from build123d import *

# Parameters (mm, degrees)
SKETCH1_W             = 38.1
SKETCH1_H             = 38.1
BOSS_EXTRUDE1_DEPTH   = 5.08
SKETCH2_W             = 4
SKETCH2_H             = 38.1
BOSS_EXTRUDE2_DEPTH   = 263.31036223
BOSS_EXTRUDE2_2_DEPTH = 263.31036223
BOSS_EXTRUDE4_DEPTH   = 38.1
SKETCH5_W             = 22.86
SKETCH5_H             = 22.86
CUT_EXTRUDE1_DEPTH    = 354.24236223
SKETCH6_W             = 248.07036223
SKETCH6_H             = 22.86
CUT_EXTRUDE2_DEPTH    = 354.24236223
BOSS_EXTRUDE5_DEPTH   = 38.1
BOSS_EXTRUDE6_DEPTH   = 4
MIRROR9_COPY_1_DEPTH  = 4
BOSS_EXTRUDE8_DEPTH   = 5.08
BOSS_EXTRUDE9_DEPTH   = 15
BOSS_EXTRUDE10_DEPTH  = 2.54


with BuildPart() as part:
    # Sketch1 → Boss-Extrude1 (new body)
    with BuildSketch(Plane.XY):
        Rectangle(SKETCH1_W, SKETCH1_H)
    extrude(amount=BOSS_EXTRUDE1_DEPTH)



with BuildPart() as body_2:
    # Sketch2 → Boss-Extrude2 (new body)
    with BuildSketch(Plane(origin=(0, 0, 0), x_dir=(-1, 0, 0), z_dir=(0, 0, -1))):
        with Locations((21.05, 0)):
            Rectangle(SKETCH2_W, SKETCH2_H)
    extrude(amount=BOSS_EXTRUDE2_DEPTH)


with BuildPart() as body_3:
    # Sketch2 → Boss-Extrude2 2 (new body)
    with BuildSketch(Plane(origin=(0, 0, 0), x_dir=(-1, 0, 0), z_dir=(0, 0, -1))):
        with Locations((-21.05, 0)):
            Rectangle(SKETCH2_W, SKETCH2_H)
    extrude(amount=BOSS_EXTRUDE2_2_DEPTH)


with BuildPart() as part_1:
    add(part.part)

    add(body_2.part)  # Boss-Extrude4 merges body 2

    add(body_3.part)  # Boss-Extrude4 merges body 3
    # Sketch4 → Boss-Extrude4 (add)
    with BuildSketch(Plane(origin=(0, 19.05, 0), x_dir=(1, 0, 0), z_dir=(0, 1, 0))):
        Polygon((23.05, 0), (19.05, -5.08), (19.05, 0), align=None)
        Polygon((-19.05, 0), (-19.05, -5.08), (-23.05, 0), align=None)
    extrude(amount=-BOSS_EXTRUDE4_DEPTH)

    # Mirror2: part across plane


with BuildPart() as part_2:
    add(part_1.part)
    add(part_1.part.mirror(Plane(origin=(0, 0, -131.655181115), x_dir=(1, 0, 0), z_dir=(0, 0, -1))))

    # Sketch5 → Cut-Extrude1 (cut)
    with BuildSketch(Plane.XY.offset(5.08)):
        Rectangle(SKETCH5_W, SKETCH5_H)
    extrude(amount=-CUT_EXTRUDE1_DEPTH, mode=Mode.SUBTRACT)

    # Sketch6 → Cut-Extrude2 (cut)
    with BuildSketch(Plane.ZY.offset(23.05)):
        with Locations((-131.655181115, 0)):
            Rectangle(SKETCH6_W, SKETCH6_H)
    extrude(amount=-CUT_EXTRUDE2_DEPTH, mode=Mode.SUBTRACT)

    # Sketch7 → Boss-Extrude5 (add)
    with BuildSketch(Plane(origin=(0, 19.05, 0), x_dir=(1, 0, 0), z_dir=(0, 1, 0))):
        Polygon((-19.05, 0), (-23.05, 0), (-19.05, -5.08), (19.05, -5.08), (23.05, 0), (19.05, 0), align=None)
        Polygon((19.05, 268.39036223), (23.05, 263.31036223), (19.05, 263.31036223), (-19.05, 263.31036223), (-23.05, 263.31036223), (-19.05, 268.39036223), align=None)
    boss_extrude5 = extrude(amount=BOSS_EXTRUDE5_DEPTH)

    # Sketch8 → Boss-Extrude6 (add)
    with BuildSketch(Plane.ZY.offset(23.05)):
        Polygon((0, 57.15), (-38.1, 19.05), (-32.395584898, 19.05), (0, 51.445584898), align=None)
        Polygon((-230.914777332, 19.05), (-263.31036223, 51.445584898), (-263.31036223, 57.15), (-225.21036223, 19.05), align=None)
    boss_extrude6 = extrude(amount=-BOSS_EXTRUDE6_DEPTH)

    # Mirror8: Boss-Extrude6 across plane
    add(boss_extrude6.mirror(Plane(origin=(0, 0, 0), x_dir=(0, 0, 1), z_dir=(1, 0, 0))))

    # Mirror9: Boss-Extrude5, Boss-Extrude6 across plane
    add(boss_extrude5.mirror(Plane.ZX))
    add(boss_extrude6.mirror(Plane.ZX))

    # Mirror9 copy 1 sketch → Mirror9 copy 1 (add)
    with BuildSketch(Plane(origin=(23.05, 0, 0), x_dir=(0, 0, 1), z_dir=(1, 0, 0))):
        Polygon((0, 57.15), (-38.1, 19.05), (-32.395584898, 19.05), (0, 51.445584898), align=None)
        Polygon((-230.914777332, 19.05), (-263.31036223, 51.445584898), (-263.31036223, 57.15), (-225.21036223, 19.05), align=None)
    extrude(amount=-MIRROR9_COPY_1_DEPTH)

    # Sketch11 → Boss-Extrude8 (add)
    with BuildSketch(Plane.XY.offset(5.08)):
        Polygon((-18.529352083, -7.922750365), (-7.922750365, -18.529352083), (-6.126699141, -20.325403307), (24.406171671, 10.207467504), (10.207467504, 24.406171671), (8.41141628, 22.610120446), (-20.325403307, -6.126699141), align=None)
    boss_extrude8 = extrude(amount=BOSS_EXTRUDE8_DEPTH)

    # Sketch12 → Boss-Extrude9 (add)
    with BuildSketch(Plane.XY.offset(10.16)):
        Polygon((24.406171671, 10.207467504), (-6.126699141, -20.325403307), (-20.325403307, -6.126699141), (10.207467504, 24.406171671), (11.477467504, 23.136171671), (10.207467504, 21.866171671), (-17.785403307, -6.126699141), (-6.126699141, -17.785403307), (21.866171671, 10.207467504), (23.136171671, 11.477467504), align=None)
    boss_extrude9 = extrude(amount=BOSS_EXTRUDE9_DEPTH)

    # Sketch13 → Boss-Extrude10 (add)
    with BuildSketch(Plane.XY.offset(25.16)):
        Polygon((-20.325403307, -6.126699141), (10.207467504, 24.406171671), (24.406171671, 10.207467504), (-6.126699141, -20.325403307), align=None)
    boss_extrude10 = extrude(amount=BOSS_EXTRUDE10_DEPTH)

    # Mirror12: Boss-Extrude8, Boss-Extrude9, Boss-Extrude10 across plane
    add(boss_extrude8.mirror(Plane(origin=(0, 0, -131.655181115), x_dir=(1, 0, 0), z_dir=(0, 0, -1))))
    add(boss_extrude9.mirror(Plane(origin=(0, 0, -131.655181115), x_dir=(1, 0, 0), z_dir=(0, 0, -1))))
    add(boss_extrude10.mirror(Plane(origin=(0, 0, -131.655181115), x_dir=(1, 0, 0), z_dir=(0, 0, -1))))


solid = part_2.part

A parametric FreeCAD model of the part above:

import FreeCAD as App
import Part
import Sketcher
from FreeCAD import Vector
Q = App.Units.Quantity

doc = App.newDocument("Part")
body = doc.addObject("PartDesign::Body", "Body")

# Sketch on XY plane
sketch1 = body.newObject("Sketcher::SketchObject", "Sketch")
sketch1.AttachmentSupport = (doc.getObject("XY_Plane"), [""])
sketch1.MapMode = "FlatFace"
sketch1.addGeometry(Part.LineSegment(Vector(-19.05, 19.05, 0), Vector(-19.05, -19.05, 0)), False)
sketch1.addGeometry(Part.LineSegment(Vector(-19.05, -19.05, 0), Vector(19.05, -19.05, 0)), False)
sketch1.addGeometry(Part.LineSegment(Vector(19.05, -19.05, 0), Vector(19.05, 19.05, 0)), False)
sketch1.addGeometry(Part.LineSegment(Vector(19.05, 19.05, 0), Vector(-19.05, 19.05, 0)), False)
sketch1.addConstraint(Sketcher.Constraint("Coincident", 0, 2, 1, 1))
sketch1.addConstraint(Sketcher.Constraint("Coincident", 1, 2, 2, 1))
sketch1.addConstraint(Sketcher.Constraint("Coincident", 2, 2, 3, 1))
sketch1.addConstraint(Sketcher.Constraint("Coincident", 3, 2, 0, 1))
sketch1.addConstraint(Sketcher.Constraint("Vertical", 0))
sketch1.addConstraint(Sketcher.Constraint("Horizontal", 1))
sketch1.addConstraint(Sketcher.Constraint("Vertical", 2))
sketch1.addConstraint(Sketcher.Constraint("Horizontal", 3))
sketch1.addConstraint(Sketcher.Constraint("Symmetric", 0, 2, 2, 2, -1, 1))
sketch1.addConstraint(Sketcher.Constraint("Equal", 3, 0))
sketch1.addConstraint(Sketcher.Constraint("DistanceX", 1, 1, 1, 2, Q("1.5 in")))
pad1 = body.newObject("PartDesign::Pad", "Pad")
pad1.Profile = sketch1
pad1.Length = Q("0.2 in")
body2 = doc.addObject("PartDesign::Body", "Body001")

# Sketch on XY plane
sketch2 = body2.newObject("Sketcher::SketchObject", "Sketch001")
sketch2.AttachmentSupport = (doc.getObject("XY_Plane001"), [""])
sketch2.MapMode = "FlatFace"
sketch2.addGeometry(Part.LineSegment(Vector(-19.05, 19.05, 0), Vector(-19.05, -19.05, 0)), False)
sketch2.addGeometry(Part.LineSegment(Vector(-19.05, -19.05, 0), Vector(-23.05, -19.05, 0)), False)
sketch2.addGeometry(Part.LineSegment(Vector(-23.05, -19.05, 0), Vector(-23.05, 19.05, 0)), False)
sketch2.addGeometry(Part.LineSegment(Vector(-23.05, 19.05, 0), Vector(-19.05, 19.05, 0)), False)
sketch2.addConstraint(Sketcher.Constraint("Coincident", 0, 2, 1, 1))
sketch2.addConstraint(Sketcher.Constraint("Coincident", 1, 2, 2, 1))
sketch2.addConstraint(Sketcher.Constraint("Coincident", 2, 2, 3, 1))
sketch2.addConstraint(Sketcher.Constraint("Coincident", 3, 2, 0, 1))
sketch2.addConstraint(Sketcher.Constraint("Vertical", 0))
sketch2.addConstraint(Sketcher.Constraint("Horizontal", 1))
sketch2.addConstraint(Sketcher.Constraint("Vertical", 2))
sketch2.addConstraint(Sketcher.Constraint("Horizontal", 3))
sketch2.addConstraint(Sketcher.Constraint("DistanceY", 0, 2, 0, 1, Q("1.5 in")))
sketch2.addConstraint(Sketcher.Constraint("DistanceX", 0, 2, -1, 1, Q("0.75 in")))
sketch2.addConstraint(Sketcher.Constraint("DistanceY", 0, 2, -1, 1, Q("0.75 in")))
sketch2.addConstraint(Sketcher.Constraint("DistanceX", 1, 2, 1, 1, 4.0))
pad2 = body2.newObject("PartDesign::Pad", "Pad001")
pad2.Profile = sketch2
pad2.Length = 263.310362
pad2.Reversed = True
body3 = doc.addObject("PartDesign::Body", "Body002")

# Sketch on XY plane
sketch3 = body3.newObject("Sketcher::SketchObject", "Sketch002")
sketch3.AttachmentSupport = (doc.getObject("XY_Plane002"), [""])
sketch3.MapMode = "FlatFace"
sketch3.addGeometry(Part.LineSegment(Vector(23.05, 19.05, 0), Vector(23.05, -19.05, 0)), False)
sketch3.addGeometry(Part.LineSegment(Vector(23.05, -19.05, 0), Vector(19.05, -19.05, 0)), False)
sketch3.addGeometry(Part.LineSegment(Vector(19.05, -19.05, 0), Vector(19.05, 19.05, 0)), False)
sketch3.addGeometry(Part.LineSegment(Vector(19.05, 19.05, 0), Vector(23.05, 19.05, 0)), False)
sketch3.addConstraint(Sketcher.Constraint("Coincident", 0, 2, 1, 1))
sketch3.addConstraint(Sketcher.Constraint("Coincident", 1, 2, 2, 1))
sketch3.addConstraint(Sketcher.Constraint("Coincident", 2, 2, 3, 1))
sketch3.addConstraint(Sketcher.Constraint("Coincident", 3, 2, 0, 1))
sketch3.addConstraint(Sketcher.Constraint("Vertical", 0))
sketch3.addConstraint(Sketcher.Constraint("Horizontal", 1))
sketch3.addConstraint(Sketcher.Constraint("Vertical", 2))
sketch3.addConstraint(Sketcher.Constraint("Horizontal", 3))
sketch3.addConstraint(Sketcher.Constraint("DistanceY", 0, 2, 0, 1, Q("1.5 in")))
sketch3.addConstraint(Sketcher.Constraint("DistanceY", 0, 2, -1, 1, Q("0.75 in")))
sketch3.addConstraint(Sketcher.Constraint("DistanceX", -1, 1, 1, 2, Q("0.75 in")))
sketch3.addConstraint(Sketcher.Constraint("DistanceX", 1, 2, 1, 1, 4.0))
pad3 = body3.newObject("PartDesign::Pad", "Pad002")
pad3.Profile = sketch3
pad3.Length = 263.310362
pad3.Reversed = True
body.AllowCompound = True
doc.recompute()

boolean = body.newObject("PartDesign::Boolean", "Boolean")
boolean.Type = "Fuse"
boolean.addObjects([body2])
doc.recompute()

boolean2 = body.newObject("PartDesign::Boolean", "Boolean001")
boolean2.Type = "Fuse"
boolean2.addObjects([body3])

# Sketch on XZ plane
sketch4 = body.newObject("Sketcher::SketchObject", "Sketch003")
sketch4.AttachmentSupport = (doc.getObject("XZ_Plane"), [""])
sketch4.MapMode = "FlatFace"
sketch4.AttachmentOffset = App.Placement(Vector(0, 0, -0.75 * 25.4), App.Rotation())
sketch4.addGeometry(Part.LineSegment(Vector(19.05, 5.08, 0), Vector(23.05, 0, 0)), False)
sketch4.addGeometry(Part.LineSegment(Vector(23.05, 0, 0), Vector(19.05, 0, 0)), False)
sketch4.addGeometry(Part.LineSegment(Vector(19.05, 0, 0), Vector(19.05, 5.08, 0)), False)
sketch4.addGeometry(Part.LineSegment(Vector(-19.05, 5.08, 0), Vector(-19.05, 0, 0)), False)
sketch4.addGeometry(Part.LineSegment(Vector(-19.05, 0, 0), Vector(-23.05, 0, 0)), False)
sketch4.addGeometry(Part.LineSegment(Vector(-23.05, 0, 0), Vector(-19.05, 5.08, 0)), False)
sketch4.addConstraint(Sketcher.Constraint("Coincident", 0, 2, 1, 1))
sketch4.addConstraint(Sketcher.Constraint("Coincident", 1, 2, 2, 1))
sketch4.addConstraint(Sketcher.Constraint("Coincident", 2, 2, 0, 1))
sketch4.addConstraint(Sketcher.Constraint("Coincident", 3, 2, 4, 1))
sketch4.addConstraint(Sketcher.Constraint("Coincident", 4, 2, 5, 1))
sketch4.addConstraint(Sketcher.Constraint("Coincident", 5, 2, 3, 1))
sketch4.addConstraint(Sketcher.Constraint("Horizontal", 1))
sketch4.addConstraint(Sketcher.Constraint("Vertical", 2))
sketch4.addConstraint(Sketcher.Constraint("Vertical", 3))
sketch4.addConstraint(Sketcher.Constraint("Horizontal", 4))
sketch4.addConstraint(Sketcher.Constraint("Symmetric", 1, 2, 3, 2, -1, 1))
sketch4.addConstraint(Sketcher.Constraint("Symmetric", 0, 2, 4, 2, -2))
sketch4.addConstraint(Sketcher.Constraint("Horizontal", 2, 2, 5, 2))
sketch4.addConstraint(Sketcher.Constraint("DistanceY", 2, 1, 2, 2, Q("0.2 in")))
sketch4.addConstraint(Sketcher.Constraint("DistanceX", 3, 2, 1, 2, Q("1.5 in")))
sketch4.addConstraint(Sketcher.Constraint("DistanceX", 1, 2, 1, 1, 4.0))
pad4 = body.newObject("PartDesign::Pad", "Pad003")
pad4.Profile = sketch4
pad4.Length = Q("1.5 in")
body4 = doc.addObject("PartDesign::Body", "Body003")
doc.recompute()

body4.BaseFeature = body
doc.recompute()

mirroring = doc.addObject("Part::Mirroring", "Mirroring")
mirroring.Source = body
mirroring.Base = Vector(0, 0, -131.655181)
mirroring.Normal = Vector(0, 0, -1)
body5 = doc.addObject("PartDesign::Body", "Body004")
body5.BaseFeature = mirroring
boolean3 = body4.newObject("PartDesign::Boolean", "Boolean002")
boolean3.Type = "Fuse"
boolean3.addObjects([body5])
doc.recompute()

# Sketch on XY plane
sketch5 = body4.newObject("Sketcher::SketchObject", "Sketch004")
sketch5.AttachmentSupport = (doc.getObject("XY_Plane003"), [""])
sketch5.MapMode = "FlatFace"
sketch5.AttachmentOffset = App.Placement(Vector(0, 0, 0.2 * 25.4), App.Rotation())
sketch5.addGeometry(Part.LineSegment(Vector(-11.43, 11.43, 0), Vector(-11.43, -11.43, 0)), False)
sketch5.addGeometry(Part.LineSegment(Vector(-11.43, -11.43, 0), Vector(11.43, -11.43, 0)), False)
sketch5.addGeometry(Part.LineSegment(Vector(11.43, -11.43, 0), Vector(11.43, 11.43, 0)), False)
sketch5.addGeometry(Part.LineSegment(Vector(11.43, 11.43, 0), Vector(-11.43, 11.43, 0)), False)
sketch5.addConstraint(Sketcher.Constraint("Coincident", 0, 2, 1, 1))
sketch5.addConstraint(Sketcher.Constraint("Coincident", 1, 2, 2, 1))
sketch5.addConstraint(Sketcher.Constraint("Coincident", 2, 2, 3, 1))
sketch5.addConstraint(Sketcher.Constraint("Coincident", 3, 2, 0, 1))
sketch5.addConstraint(Sketcher.Constraint("Vertical", 0))
sketch5.addConstraint(Sketcher.Constraint("Horizontal", 1))
sketch5.addConstraint(Sketcher.Constraint("Vertical", 2))
sketch5.addConstraint(Sketcher.Constraint("Horizontal", 3))
sketch5.addConstraint(Sketcher.Constraint("Symmetric", 0, 2, 2, 2, -1, 1))
sketch5.addConstraint(Sketcher.Constraint("Equal", 3, 0))
sketch5.addConstraint(Sketcher.Constraint("DistanceX", 1, 1, 1, 2, Q("0.9 in")))
pocket1 = body4.newObject("PartDesign::Pocket", "Pocket")
pocket1.Profile = sketch5
pocket1.Length = 354.242362

# Sketch on YZ plane
sketch6 = body4.newObject("Sketcher::SketchObject", "Sketch005")
sketch6.AttachmentSupport = (doc.getObject("YZ_Plane003"), [""])
sketch6.MapMode = "FlatFace"
sketch6.AttachmentOffset = App.Placement(Vector(0, 0, -23.05), App.Rotation())
sketch6.addGeometry(Part.LineSegment(Vector(11.43, -255.690362, 0), Vector(-11.43, -255.690362, 0)), False)
sketch6.addGeometry(Part.LineSegment(Vector(-11.43, -255.690362, 0), Vector(-11.43, -7.62, 0)), False)
sketch6.addGeometry(Part.LineSegment(Vector(-11.43, -7.62, 0), Vector(11.43, -7.62, 0)), False)
sketch6.addGeometry(Part.LineSegment(Vector(11.43, -7.62, 0), Vector(11.43, -255.690362, 0)), False)
sketch6.addConstraint(Sketcher.Constraint("Coincident", 0, 2, 1, 1))
sketch6.addConstraint(Sketcher.Constraint("Coincident", 1, 2, 2, 1))
sketch6.addConstraint(Sketcher.Constraint("Coincident", 2, 2, 3, 1))
sketch6.addConstraint(Sketcher.Constraint("Coincident", 3, 2, 0, 1))
sketch6.addConstraint(Sketcher.Constraint("Horizontal", 0))
sketch6.addConstraint(Sketcher.Constraint("Vertical", 1))
sketch6.addConstraint(Sketcher.Constraint("Horizontal", 2))
sketch6.addConstraint(Sketcher.Constraint("Vertical", 3))
sketch6.addConstraint(Sketcher.Constraint("DistanceX", 0, 2, 0, 1, Q("0.9 in")))
sketch6.addConstraint(Sketcher.Constraint("DistanceY", 1, 2, -1, 1, Q("0.3 in")))
sketch6.addConstraint(Sketcher.Constraint("DistanceX", 0, 2, -1, 1, Q("0.45 in")))
sketch6.addConstraint(Sketcher.Constraint("DistanceY", 1, 1, 1, 2, 248.070362))
pocket2 = body4.newObject("PartDesign::Pocket", "Pocket001")
pocket2.Profile = sketch6
pocket2.Length = 354.242362
pocket2.Reversed = True

# Sketch on XZ plane
sketch7 = body4.newObject("Sketcher::SketchObject", "Sketch006")
sketch7.AttachmentSupport = (doc.getObject("XZ_Plane003"), [""])
sketch7.MapMode = "FlatFace"
sketch7.AttachmentOffset = App.Placement(Vector(0, 0, -0.75 * 25.4), App.Rotation())
sketch7.addGeometry(Part.LineSegment(Vector(-23.05, 0, 0), Vector(-19.05, 5.08, 0)), False)
sketch7.addGeometry(Part.LineSegment(Vector(-19.05, 5.08, 0), Vector(19.05, 5.08, 0)), False)
sketch7.addGeometry(Part.LineSegment(Vector(19.05, 5.08, 0), Vector(23.05, 0, 0)), False)
sketch7.addGeometry(Part.LineSegment(Vector(23.05, 0, 0), Vector(-23.05, 0, 0)), False)
sketch7.addGeometry(Part.LineSegment(Vector(23.05, -263.310362, 0), Vector(19.05, -268.390362, 0)), False)
sketch7.addGeometry(Part.LineSegment(Vector(19.05, -268.390362, 0), Vector(-19.05, -268.390362, 0)), False)
sketch7.addGeometry(Part.LineSegment(Vector(-19.05, -268.390362, 0), Vector(-23.05, -263.310362, 0)), False)
sketch7.addGeometry(Part.LineSegment(Vector(-23.05, -263.310362, 0), Vector(23.05, -263.310362, 0)), False)
sketch7.addConstraint(Sketcher.Constraint("Coincident", 0, 2, 1, 1))
sketch7.addConstraint(Sketcher.Constraint("Coincident", 1, 2, 2, 1))
sketch7.addConstraint(Sketcher.Constraint("Coincident", 2, 2, 3, 1))
sketch7.addConstraint(Sketcher.Constraint("Coincident", 3, 2, 0, 1))
sketch7.addConstraint(Sketcher.Constraint("Coincident", 4, 2, 5, 1))
sketch7.addConstraint(Sketcher.Constraint("Coincident", 5, 2, 6, 1))
sketch7.addConstraint(Sketcher.Constraint("Coincident", 6, 2, 7, 1))
sketch7.addConstraint(Sketcher.Constraint("Coincident", 7, 2, 4, 1))
sketch7.addConstraint(Sketcher.Constraint("Horizontal", 1))
sketch7.addConstraint(Sketcher.Constraint("Horizontal", 3))
sketch7.addConstraint(Sketcher.Constraint("Horizontal", 5))
sketch7.addConstraint(Sketcher.Constraint("Horizontal", 7))
sketch7.addConstraint(Sketcher.Constraint("Symmetric", 2, 2, 3, 2, -1, 1))
sketch7.addConstraint(Sketcher.Constraint("Parallel", 0, 4))
sketch7.addConstraint(Sketcher.Constraint("Parallel", 2, 6))
sketch7.addConstraint(Sketcher.Constraint("Vertical", 1, 2, 4, 2))
sketch7.addConstraint(Sketcher.Constraint("Vertical", 0, 2, 5, 2))
sketch7.addConstraint(Sketcher.Constraint("Vertical", 3, 2, 6, 2))
sketch7.addConstraint(Sketcher.Constraint("Vertical", 2, 2, 7, 2))
sketch7.addConstraint(Sketcher.Constraint("DistanceX", 1, 1, 1, 2, Q("1.5 in")))
sketch7.addConstraint(Sketcher.Constraint("DistanceY", -1, 1, 0, 2, Q("0.2 in")))
sketch7.addConstraint(Sketcher.Constraint("DistanceX", 3, 2, 3, 1, 46.1))
sketch7.addConstraint(Sketcher.Constraint("DistanceY", 4, 2, -1, 1, 268.390362))
pad5 = body4.newObject("PartDesign::Pad", "Pad004")
pad5.Profile = sketch7
pad5.Length = Q("1.5 in")
pad5.Reversed = True

# Sketch on YZ plane
sketch8 = body4.newObject("Sketcher::SketchObject", "Sketch007")
sketch8.AttachmentSupport = (doc.getObject("YZ_Plane003"), [""])
sketch8.MapMode = "FlatFace"
sketch8.AttachmentOffset = App.Placement(Vector(0, 0, -23.05), App.Rotation())
sketch8.addGeometry(Part.LineSegment(Vector(57.15, 0, 0), Vector(19.05, -38.1, 0)), False)
sketch8.addGeometry(Part.LineSegment(Vector(19.05, -38.1, 0), Vector(19.05, -32.395585, 0)), False)
sketch8.addGeometry(Part.LineSegment(Vector(19.05, -32.395585, 0), Vector(51.445585, 0, 0)), False)
sketch8.addGeometry(Part.LineSegment(Vector(51.445585, 0, 0), Vector(57.15, 0, 0)), False)
sketch8.addGeometry(Part.LineSegment(Vector(51.445585, -263.310362, 0), Vector(19.05, -230.914777, 0)), False)
sketch8.addGeometry(Part.LineSegment(Vector(19.05, -230.914777, 0), Vector(19.05, -225.210362, 0)), False)
sketch8.addGeometry(Part.LineSegment(Vector(19.05, -225.210362, 0), Vector(57.15, -263.310362, 0)), False)
sketch8.addGeometry(Part.LineSegment(Vector(57.15, -263.310362, 0), Vector(51.445585, -263.310362, 0)), False)
sketch8.addConstraint(Sketcher.Constraint("Coincident", 0, 2, 1, 1))
sketch8.addConstraint(Sketcher.Constraint("Coincident", 1, 2, 2, 1))
sketch8.addConstraint(Sketcher.Constraint("Coincident", 2, 2, 3, 1))
sketch8.addConstraint(Sketcher.Constraint("Coincident", 3, 2, 0, 1))
sketch8.addConstraint(Sketcher.Constraint("Coincident", 4, 2, 5, 1))
sketch8.addConstraint(Sketcher.Constraint("Coincident", 5, 2, 6, 1))
sketch8.addConstraint(Sketcher.Constraint("Coincident", 6, 2, 7, 1))
sketch8.addConstraint(Sketcher.Constraint("Coincident", 7, 2, 4, 1))
sketch8.addConstraint(Sketcher.Constraint("Vertical", 1))
sketch8.addConstraint(Sketcher.Constraint("Horizontal", 3))
sketch8.addConstraint(Sketcher.Constraint("Vertical", 5))
sketch8.addConstraint(Sketcher.Constraint("Horizontal", 7))
sketch8.addConstraint(Sketcher.Constraint("PointOnObject", 2, 2, -1))
sketch8.addConstraint(Sketcher.Constraint("Parallel", 0, 2))
sketch8.addConstraint(Sketcher.Constraint("Perpendicular", 2, 4))
sketch8.addConstraint(Sketcher.Constraint("Parallel", 4, 6))
sketch8.addConstraint(Sketcher.Constraint("Vertical", 1, 2, 4, 2))
sketch8.addConstraint(Sketcher.Constraint("Vertical", 3, 2, 6, 2))
sketch8.addConstraint(Sketcher.Constraint("Vertical", 2, 2, 7, 2))
sketch8.addConstraint(Sketcher.Constraint("Equal", 7, 1))
sketch8.addConstraint(Sketcher.Constraint("DistanceY", 0, 2, -1, 1, Q("1.5 in")))
sketch8.addConstraint(Sketcher.Constraint("DistanceX", -1, 1, 0, 2, Q("0.75 in")))
sketch8.addConstraint(Sketcher.Constraint("DistanceX", 3, 1, 3, 2, 5.704415))
sketch8.addConstraint(Sketcher.Constraint("DistanceY", 4, 2, -1, 1, 230.914777))
pad6 = body4.newObject("PartDesign::Pad", "Pad005")
pad6.Profile = sketch8
pad6.Length = 4
doc.recompute()

mirrored = body4.newObject("PartDesign::Mirrored", "Mirrored")
mirrored.Originals = [pad6]
mirrored.MirrorPlane = (doc.getObject("YZ_Plane003"), [""])
body4.Tip = mirrored
doc.recompute()

mirrored2 = body4.newObject("PartDesign::Mirrored", "Mirrored001")
mirrored2.Originals = [pad5, pad6]
mirrored2.MirrorPlane = (doc.getObject("XZ_Plane003"), [""])
body4.Tip = mirrored2

# Sketch on YZ plane
sketch9 = body4.newObject("Sketcher::SketchObject", "Sketch008")
sketch9.AttachmentSupport = (doc.getObject("YZ_Plane003"), [""])
sketch9.MapMode = "FlatFace"
sketch9.AttachmentOffset = App.Placement(Vector(0, 0, 23.05), App.Rotation())
sketch9.addGeometry(Part.LineSegment(Vector(-57.15, 0, 0), Vector(-19.05, -38.1, 0)), False)
sketch9.addGeometry(Part.LineSegment(Vector(-19.05, -38.1, 0), Vector(-19.05, -32.395585, 0)), False)
sketch9.addGeometry(Part.LineSegment(Vector(-19.05, -32.395585, 0), Vector(-51.445585, 0, 0)), False)
sketch9.addGeometry(Part.LineSegment(Vector(-51.445585, 0, 0), Vector(-57.15, 0, 0)), False)
sketch9.addGeometry(Part.LineSegment(Vector(-51.445585, -263.310362, 0), Vector(-19.05, -230.914777, 0)), False)
sketch9.addGeometry(Part.LineSegment(Vector(-19.05, -230.914777, 0), Vector(-19.05, -225.210362, 0)), False)
sketch9.addGeometry(Part.LineSegment(Vector(-19.05, -225.210362, 0), Vector(-57.15, -263.310362, 0)), False)
sketch9.addGeometry(Part.LineSegment(Vector(-57.15, -263.310362, 0), Vector(-51.445585, -263.310362, 0)), False)
sketch9.addConstraint(Sketcher.Constraint("Coincident", 0, 2, 1, 1))
sketch9.addConstraint(Sketcher.Constraint("Coincident", 1, 2, 2, 1))
sketch9.addConstraint(Sketcher.Constraint("Coincident", 2, 2, 3, 1))
sketch9.addConstraint(Sketcher.Constraint("Coincident", 3, 2, 0, 1))
sketch9.addConstraint(Sketcher.Constraint("Coincident", 4, 2, 5, 1))
sketch9.addConstraint(Sketcher.Constraint("Coincident", 5, 2, 6, 1))
sketch9.addConstraint(Sketcher.Constraint("Coincident", 6, 2, 7, 1))
sketch9.addConstraint(Sketcher.Constraint("Coincident", 7, 2, 4, 1))
sketch9.addConstraint(Sketcher.Constraint("Vertical", 1))
sketch9.addConstraint(Sketcher.Constraint("Horizontal", 3))
sketch9.addConstraint(Sketcher.Constraint("Vertical", 5))
sketch9.addConstraint(Sketcher.Constraint("Horizontal", 7))
sketch9.addConstraint(Sketcher.Constraint("PointOnObject", 2, 2, -1))
sketch9.addConstraint(Sketcher.Constraint("Parallel", 0, 2))
sketch9.addConstraint(Sketcher.Constraint("Perpendicular", 2, 4))
sketch9.addConstraint(Sketcher.Constraint("Parallel", 4, 6))
sketch9.addConstraint(Sketcher.Constraint("Vertical", 1, 2, 4, 2))
sketch9.addConstraint(Sketcher.Constraint("Vertical", 3, 2, 6, 2))
sketch9.addConstraint(Sketcher.Constraint("Vertical", 2, 2, 7, 2))
sketch9.addConstraint(Sketcher.Constraint("Equal", 7, 1))
sketch9.addConstraint(Sketcher.Constraint("DistanceY", 0, 2, -1, 1, Q("1.5 in")))
sketch9.addConstraint(Sketcher.Constraint("DistanceX", 0, 2, -1, 1, Q("0.75 in")))
sketch9.addConstraint(Sketcher.Constraint("DistanceX", 3, 2, 3, 1, 5.704415))
sketch9.addConstraint(Sketcher.Constraint("DistanceY", 4, 2, -1, 1, 230.914777))
pad7 = body4.newObject("PartDesign::Pad", "Pad006")
pad7.Profile = sketch9
pad7.Length = 4
pad7.Reversed = True

# Sketch on XY plane
sketch10 = body4.newObject("Sketcher::SketchObject", "Sketch009")
sketch10.AttachmentSupport = (doc.getObject("XY_Plane003"), [""])
sketch10.MapMode = "FlatFace"
sketch10.AttachmentOffset = App.Placement(Vector(0, 0, 0.2 * 25.4), App.Rotation())
sketch10.addGeometry(Part.LineSegment(Vector(-6.126699, -20.325403, 0), Vector(24.406172, 10.207468, 0)), False)
sketch10.addGeometry(Part.LineSegment(Vector(24.406172, 10.207468, 0), Vector(10.207468, 24.406172, 0)), False)
sketch10.addGeometry(Part.LineSegment(Vector(10.207468, 24.406172, 0), Vector(8.411416, 22.61012, 0)), False)
sketch10.addGeometry(Part.LineSegment(Vector(8.411416, 22.61012, 0), Vector(-20.325403, -6.126699, 0)), False)
sketch10.addGeometry(Part.LineSegment(Vector(-20.325403, -6.126699, 0), Vector(-6.126699, -20.325403, 0)), False)
sketch10.addConstraint(Sketcher.Constraint("Coincident", 0, 2, 1, 1))
sketch10.addConstraint(Sketcher.Constraint("Coincident", 1, 2, 2, 1))
sketch10.addConstraint(Sketcher.Constraint("Coincident", 2, 2, 3, 1))
sketch10.addConstraint(Sketcher.Constraint("Coincident", 3, 2, 4, 1))
sketch10.addConstraint(Sketcher.Constraint("Coincident", 4, 2, 0, 1))
sketch10.addConstraint(Sketcher.Constraint("Perpendicular", 0, 1))
sketch10.addConstraint(Sketcher.Constraint("Perpendicular", 1, 2))
sketch10.addConstraint(Sketcher.Constraint("Parallel", 2, 3))
sketch10.addConstraint(Sketcher.Constraint("Perpendicular", 3, 4))
sketch10.addConstraint(Sketcher.Constraint("Angle", 0, Q("45 deg")))
sketch10.addConstraint(Sketcher.Constraint("Distance", 0, Q("1.7 in")))
sketch10.addConstraint(Sketcher.Constraint("Distance", 2, Q("0.1 in")))
sketch10.addConstraint(Sketcher.Constraint("Distance", 1, 20.08))
sketch10.addConstraint(Sketcher.Constraint("DistanceY", 3, 2, -1, 1, 6.126699))
sketch10.addConstraint(Sketcher.Constraint("DistanceX", 4, 2, -1, 1, 6.126699))
pad8 = body4.newObject("PartDesign::Pad", "Pad007")
pad8.Profile = sketch10
pad8.Length = Q("0.2 in")

# Sketch on XY plane
sketch11 = body4.newObject("Sketcher::SketchObject", "Sketch010")
sketch11.AttachmentSupport = (doc.getObject("XY_Plane003"), [""])
sketch11.MapMode = "FlatFace"
sketch11.AttachmentOffset = App.Placement(Vector(0, 0, 0.4 * 25.4), App.Rotation())
sketch11.addGeometry(Part.LineSegment(Vector(-6.126699, -20.325403, 0), Vector(24.406172, 10.207468, 0)), False)
sketch11.addGeometry(Part.LineSegment(Vector(24.406172, 10.207468, 0), Vector(23.136172, 11.477468, 0)), False)
sketch11.addGeometry(Part.LineSegment(Vector(23.136172, 11.477468, 0), Vector(21.866172, 10.207468, 0)), False)
sketch11.addGeometry(Part.LineSegment(Vector(21.866172, 10.207468, 0), Vector(-6.126699, -17.785403, 0)), False)
sketch11.addGeometry(Part.LineSegment(Vector(-6.126699, -17.785403, 0), Vector(-17.785403, -6.126699, 0)), False)
sketch11.addGeometry(Part.LineSegment(Vector(-17.785403, -6.126699, 0), Vector(10.207468, 21.866172, 0)), False)
sketch11.addGeometry(Part.LineSegment(Vector(10.207468, 21.866172, 0), Vector(11.477468, 23.136172, 0)), False)
sketch11.addGeometry(Part.LineSegment(Vector(11.477468, 23.136172, 0), Vector(10.207468, 24.406172, 0)), False)
sketch11.addGeometry(Part.LineSegment(Vector(10.207468, 24.406172, 0), Vector(-20.325403, -6.126699, 0)), False)
sketch11.addGeometry(Part.LineSegment(Vector(-20.325403, -6.126699, 0), Vector(-6.126699, -20.325403, 0)), False)
sketch11.addConstraint(Sketcher.Constraint("Coincident", 0, 2, 1, 1))
sketch11.addConstraint(Sketcher.Constraint("Coincident", 1, 2, 2, 1))
sketch11.addConstraint(Sketcher.Constraint("Coincident", 2, 2, 3, 1))
sketch11.addConstraint(Sketcher.Constraint("Coincident", 3, 2, 4, 1))
sketch11.addConstraint(Sketcher.Constraint("Coincident", 4, 2, 5, 1))
sketch11.addConstraint(Sketcher.Constraint("Coincident", 5, 2, 6, 1))
sketch11.addConstraint(Sketcher.Constraint("Coincident", 6, 2, 7, 1))
sketch11.addConstraint(Sketcher.Constraint("Coincident", 7, 2, 8, 1))
sketch11.addConstraint(Sketcher.Constraint("Coincident", 8, 2, 9, 1))
sketch11.addConstraint(Sketcher.Constraint("Coincident", 9, 2, 0, 1))
sketch11.addConstraint(Sketcher.Constraint("Perpendicular", 0, 1))
sketch11.addConstraint(Sketcher.Constraint("Perpendicular", 1, 2))
sketch11.addConstraint(Sketcher.Constraint("Parallel", 2, 3))
sketch11.addConstraint(Sketcher.Constraint("Perpendicular", 3, 4))
sketch11.addConstraint(Sketcher.Constraint("Perpendicular", 4, 5))
sketch11.addConstraint(Sketcher.Constraint("Parallel", 5, 6))
sketch11.addConstraint(Sketcher.Constraint("Perpendicular", 6, 7))
sketch11.addConstraint(Sketcher.Constraint("Perpendicular", 7, 8))
sketch11.addConstraint(Sketcher.Constraint("Perpendicular", 8, 9))
sketch11.addConstraint(Sketcher.Constraint("Horizontal", 0, 2, 2, 2))
sketch11.addConstraint(Sketcher.Constraint("Horizontal", 4, 2, 8, 2))
sketch11.addConstraint(Sketcher.Constraint("Vertical", 5, 2, 7, 2))
sketch11.addConstraint(Sketcher.Constraint("Vertical", 3, 2, 9, 2))
sketch11.addConstraint(Sketcher.Constraint("Equal", 1, 2))
sketch11.addConstraint(Sketcher.Constraint("Equal", 3, 5))
sketch11.addConstraint(Sketcher.Constraint("Distance", 0, Q("1.7 in")))
sketch11.addConstraint(Sketcher.Constraint("DistanceX", 2, 2, 0, 2, Q("0.1 in")))
sketch11.addConstraint(Sketcher.Constraint("Distance", 9, 20.08))
sketch11.addConstraint(Sketcher.Constraint("DistanceX", 3, 2, -1, 1, 6.126699))
sketch11.addConstraint(Sketcher.Constraint("DistanceY", 4, 2, -1, 1, 6.126699))
pad9 = body4.newObject("PartDesign::Pad", "Pad008")
pad9.Profile = sketch11
pad9.Length = 15

# Sketch on XY plane
sketch12 = body4.newObject("Sketcher::SketchObject", "Sketch011")
sketch12.AttachmentSupport = (doc.getObject("XY_Plane003"), [""])
sketch12.MapMode = "FlatFace"
sketch12.AttachmentOffset = App.Placement(Vector(0, 0, 25.16), App.Rotation())
sketch12.addGeometry(Part.LineSegment(Vector(10.207468, 24.406172, 0), Vector(-20.325403, -6.126699, 0)), False)
sketch12.addGeometry(Part.LineSegment(Vector(-20.325403, -6.126699, 0), Vector(-6.126699, -20.325403, 0)), False)
sketch12.addGeometry(Part.LineSegment(Vector(-6.126699, -20.325403, 0), Vector(24.406172, 10.207468, 0)), False)
sketch12.addGeometry(Part.LineSegment(Vector(24.406172, 10.207468, 0), Vector(10.207468, 24.406172, 0)), False)
sketch12.addConstraint(Sketcher.Constraint("Coincident", 0, 2, 1, 1))
sketch12.addConstraint(Sketcher.Constraint("Coincident", 1, 2, 2, 1))
sketch12.addConstraint(Sketcher.Constraint("Coincident", 2, 2, 3, 1))
sketch12.addConstraint(Sketcher.Constraint("Coincident", 3, 2, 0, 1))
sketch12.addConstraint(Sketcher.Constraint("Perpendicular", 0, 1))
sketch12.addConstraint(Sketcher.Constraint("Perpendicular", 1, 2))
sketch12.addConstraint(Sketcher.Constraint("Perpendicular", 2, 3))
sketch12.addConstraint(Sketcher.Constraint("Angle", 0, Q("-135 deg")))
sketch12.addConstraint(Sketcher.Constraint("Distance", 0, Q("1.7 in")))
sketch12.addConstraint(Sketcher.Constraint("Distance", 1, 20.08))
sketch12.addConstraint(Sketcher.Constraint("DistanceY", 0, 2, -1, 1, 6.126699))
sketch12.addConstraint(Sketcher.Constraint("DistanceX", 1, 2, -1, 1, 6.126699))
pad10 = body4.newObject("PartDesign::Pad", "Pad009")
pad10.Profile = sketch12
pad10.Length = Q("0.1 in")
doc.recompute()

datumplane = body4.newObject("PartDesign::Plane", "DatumPlane")
datumplane.AttachmentSupport = (doc.getObject("XY_Plane003"), [""])
datumplane.MapMode = "FlatFace"
datumplane.AttachmentOffset = App.Placement(Vector(0, 0, -131.655181), App.Rotation())
mirrored3 = body4.newObject("PartDesign::Mirrored", "Mirrored002")
mirrored3.Originals = [pad8, pad9, pad10]
mirrored3.MirrorPlane = (datumplane, [""])
body4.Tip = mirrored3
mirroring.Visibility = False

doc.recompute()
